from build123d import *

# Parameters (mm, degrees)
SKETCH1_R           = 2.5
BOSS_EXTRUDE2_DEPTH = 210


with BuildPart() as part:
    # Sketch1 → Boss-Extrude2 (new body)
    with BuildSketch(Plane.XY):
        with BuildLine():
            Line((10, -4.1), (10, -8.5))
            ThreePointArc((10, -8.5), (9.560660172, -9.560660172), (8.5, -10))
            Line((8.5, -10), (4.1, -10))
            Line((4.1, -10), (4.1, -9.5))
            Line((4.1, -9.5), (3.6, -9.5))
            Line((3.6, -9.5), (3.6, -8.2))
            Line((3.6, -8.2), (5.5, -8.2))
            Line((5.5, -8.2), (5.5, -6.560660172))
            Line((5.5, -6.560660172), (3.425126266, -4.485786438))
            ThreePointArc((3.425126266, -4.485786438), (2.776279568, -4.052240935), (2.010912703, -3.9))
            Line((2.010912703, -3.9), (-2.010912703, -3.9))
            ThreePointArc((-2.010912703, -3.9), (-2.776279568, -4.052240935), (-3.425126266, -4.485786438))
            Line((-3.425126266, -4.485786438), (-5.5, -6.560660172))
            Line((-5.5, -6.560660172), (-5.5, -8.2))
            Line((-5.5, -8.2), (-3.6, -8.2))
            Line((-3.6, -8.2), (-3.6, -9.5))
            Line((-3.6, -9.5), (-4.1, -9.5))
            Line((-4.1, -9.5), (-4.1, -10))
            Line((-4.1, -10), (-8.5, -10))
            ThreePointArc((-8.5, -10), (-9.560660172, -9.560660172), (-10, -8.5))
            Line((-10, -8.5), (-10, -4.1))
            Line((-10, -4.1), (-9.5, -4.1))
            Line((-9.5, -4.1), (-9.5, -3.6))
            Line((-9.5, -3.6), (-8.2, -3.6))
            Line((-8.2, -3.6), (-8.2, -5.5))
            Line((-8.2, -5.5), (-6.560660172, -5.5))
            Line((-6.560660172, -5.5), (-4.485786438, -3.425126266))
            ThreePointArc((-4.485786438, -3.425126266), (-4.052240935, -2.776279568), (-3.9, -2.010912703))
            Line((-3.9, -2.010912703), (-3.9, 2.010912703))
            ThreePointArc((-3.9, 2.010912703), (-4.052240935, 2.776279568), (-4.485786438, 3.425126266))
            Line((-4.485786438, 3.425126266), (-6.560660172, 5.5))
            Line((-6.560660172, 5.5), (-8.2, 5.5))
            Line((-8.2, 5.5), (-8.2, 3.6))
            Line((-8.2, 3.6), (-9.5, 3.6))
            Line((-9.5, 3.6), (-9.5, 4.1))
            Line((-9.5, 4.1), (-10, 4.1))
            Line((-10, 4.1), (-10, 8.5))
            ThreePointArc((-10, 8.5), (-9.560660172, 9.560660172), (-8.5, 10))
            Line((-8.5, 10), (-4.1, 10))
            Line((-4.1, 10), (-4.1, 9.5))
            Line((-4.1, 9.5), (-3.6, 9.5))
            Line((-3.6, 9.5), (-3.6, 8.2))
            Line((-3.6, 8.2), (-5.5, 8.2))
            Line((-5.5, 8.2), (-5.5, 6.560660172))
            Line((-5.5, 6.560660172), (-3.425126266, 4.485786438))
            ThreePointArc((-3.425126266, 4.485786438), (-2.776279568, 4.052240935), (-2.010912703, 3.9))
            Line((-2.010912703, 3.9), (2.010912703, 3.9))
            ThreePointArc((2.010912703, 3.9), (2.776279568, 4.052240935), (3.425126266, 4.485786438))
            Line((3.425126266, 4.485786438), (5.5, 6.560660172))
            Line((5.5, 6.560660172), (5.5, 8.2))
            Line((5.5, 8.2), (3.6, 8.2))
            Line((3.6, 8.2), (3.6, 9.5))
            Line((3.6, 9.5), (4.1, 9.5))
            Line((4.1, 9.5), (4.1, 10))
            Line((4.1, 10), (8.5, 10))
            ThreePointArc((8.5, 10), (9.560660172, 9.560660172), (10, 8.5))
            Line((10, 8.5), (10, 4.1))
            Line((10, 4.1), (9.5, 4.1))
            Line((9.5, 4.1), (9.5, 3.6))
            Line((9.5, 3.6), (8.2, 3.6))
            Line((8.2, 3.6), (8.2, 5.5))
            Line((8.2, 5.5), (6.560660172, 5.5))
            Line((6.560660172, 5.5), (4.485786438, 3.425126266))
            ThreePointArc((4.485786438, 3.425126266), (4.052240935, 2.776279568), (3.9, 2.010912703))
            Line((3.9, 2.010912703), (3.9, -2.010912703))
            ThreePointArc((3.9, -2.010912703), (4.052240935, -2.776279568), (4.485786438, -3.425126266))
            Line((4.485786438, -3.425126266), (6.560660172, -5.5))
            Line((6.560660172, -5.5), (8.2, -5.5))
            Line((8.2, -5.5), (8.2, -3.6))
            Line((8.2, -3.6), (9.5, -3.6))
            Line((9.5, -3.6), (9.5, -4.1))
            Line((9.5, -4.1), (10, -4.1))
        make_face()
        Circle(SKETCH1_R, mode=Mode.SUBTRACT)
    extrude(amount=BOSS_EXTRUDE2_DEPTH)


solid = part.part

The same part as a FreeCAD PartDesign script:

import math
import FreeCAD as App
import Part
import Sketcher
from FreeCAD import Vector
Q = App.Units.Quantity

doc = App.newDocument("Part")
body = doc.addObject("PartDesign::Body", "Body")

sketch1 = body.newObject("Sketcher::SketchObject", "Sketch")
sketch1.AttachmentSupport = (doc.getObject("XY_Plane"), [""])
sketch1.MapMode = "FlatFace"
sketch1.addGeometry(Part.LineSegment(Vector(10, -8.5, 0), Vector(10, -4.1, 0)), False)
sketch1.addGeometry(Part.LineSegment(Vector(10, -4.1, 0), Vector(9.5, -4.1, 0)), False)
sketch1.addGeometry(Part.LineSegment(Vector(9.5, -4.1, 0), Vector(9.5, -3.6, 0)), False)
sketch1.addGeometry(Part.LineSegment(Vector(9.5, -3.6, 0), Vector(8.2, -3.6, 0)), False)
sketch1.addGeometry(Part.LineSegment(Vector(8.2, -3.6, 0), Vector(8.2, -5.5, 0)), False)
sketch1.addGeometry(Part.LineSegment(Vector(8.2, -5.5, 0), Vector(6.56066, -5.5, 0)), False)
sketch1.addGeometry(Part.LineSegment(Vector(6.56066, -5.5, 0), Vector(4.485786, -3.425126, 0)), False)
sketch1.addGeometry(Part.ArcOfCircle(Part.Circle(Vector(5.9, -2.010913, 0), Vector(0, 0, 1), 2), math.radians(180), math.radians(225)), False)
sketch1.addGeometry(Part.LineSegment(Vector(3.9, -2.010913, 0), Vector(3.9, 2.010913, 0)), False)
sketch1.addGeometry(Part.ArcOfCircle(Part.Circle(Vector(5.9, 2.010913, 0), Vector(0, 0, 1), 2), math.radians(135), math.radians(180)), False)
sketch1.addGeometry(Part.LineSegment(Vector(4.485786, 3.425126, 0), Vector(6.56066, 5.5, 0)), False)
sketch1.addGeometry(Part.LineSegment(Vector(6.56066, 5.5, 0), Vector(8.2, 5.5, 0)), False)
sketch1.addGeometry(Part.LineSegment(Vector(8.2, 5.5, 0), Vector(8.2, 3.6, 0)), False)
sketch1.addGeometry(Part.LineSegment(Vector(8.2, 3.6, 0), Vector(9.5, 3.6, 0)), False)
sketch1.addGeometry(Part.LineSegment(Vector(9.5, 3.6, 0), Vector(9.5, 4.1, 0)), False)
sketch1.addGeometry(Part.LineSegment(Vector(9.5, 4.1, 0), Vector(10, 4.1, 0)), False)
sketch1.addGeometry(Part.LineSegment(Vector(10, 4.1, 0), Vector(10, 8.5, 0)), False)
sketch1.addGeometry(Part.ArcOfCircle(Part.Circle(Vector(8.5, 8.5, 0), Vector(0, 0, 1), 1.5), math.radians(0), math.radians(90)), False)
sketch1.addGeometry(Part.LineSegment(Vector(8.5, 10, 0), Vector(4.1, 10, 0)), False)
sketch1.addGeometry(Part.LineSegment(Vector(4.1, 10, 0), Vector(4.1, 9.5, 0)), False)
sketch1.addGeometry(Part.LineSegment(Vector(4.1, 9.5, 0), Vector(3.6, 9.5, 0)), False)
sketch1.addGeometry(Part.LineSegment(Vector(3.6, 9.5, 0), Vector(3.6, 8.2, 0)), False)
sketch1.addGeometry(Part.LineSegment(Vector(3.6, 8.2, 0), Vector(5.5, 8.2, 0)), False)
sketch1.addGeometry(Part.LineSegment(Vector(5.5, 8.2, 0), Vector(5.5, 6.56066, 0)), False)
sketch1.addGeometry(Part.LineSegment(Vector(5.5, 6.56066, 0), Vector(3.425126, 4.485786, 0)), False)
sketch1.addGeometry(Part.ArcOfCircle(Part.Circle(Vector(2.010913, 5.9, 0), Vector(0, 0, 1), 2), math.radians(-90), math.radians(-45)), False)
sketch1.addGeometry(Part.LineSegment(Vector(2.010913, 3.9, 0), Vector(-2.010913, 3.9, 0)), False)
sketch1.addGeometry(Part.ArcOfCircle(Part.Circle(Vector(-2.010913, 5.9, 0), Vector(0, 0, 1), 2), math.radians(-135), math.radians(-90)), False)
sketch1.addGeometry(Part.LineSegment(Vector(-3.425126, 4.485786, 0), Vector(-5.5, 6.56066, 0)), False)
sketch1.addGeometry(Part.LineSegment(Vector(-5.5, 6.56066, 0), Vector(-5.5, 8.2, 0)), False)
sketch1.addGeometry(Part.LineSegment(Vector(-5.5, 8.2, 0), Vector(-3.6, 8.2, 0)), False)
sketch1.addGeometry(Part.LineSegment(Vector(-3.6, 8.2, 0), Vector(-3.6, 9.5, 0)), False)
sketch1.addGeometry(Part.LineSegment(Vector(-3.6, 9.5, 0), Vector(-4.1, 9.5, 0)), False)
sketch1.addGeometry(Part.LineSegment(Vector(-4.1, 9.5, 0), Vector(-4.1, 10, 0)), False)
sketch1.addGeometry(Part.LineSegment(Vector(-4.1, 10, 0), Vector(-8.5, 10, 0)), False)
sketch1.addGeometry(Part.ArcOfCircle(Part.Circle(Vector(-8.5, 8.5, 0), Vector(0, 0, 1), 1.5), math.radians(90), math.radians(180)), False)
sketch1.addGeometry(Part.LineSegment(Vector(-10, 8.5, 0), Vector(-10, 4.1, 0)), False)
sketch1.addGeometry(Part.LineSegment(Vector(-10, 4.1, 0), Vector(-9.5, 4.1, 0)), False)
sketch1.addGeometry(Part.LineSegment(Vector(-9.5, 4.1, 0), Vector(-9.5, 3.6, 0)), False)
sketch1.addGeometry(Part.LineSegment(Vector(-9.5, 3.6, 0), Vector(-8.2, 3.6, 0)), False)
sketch1.addGeometry(Part.LineSegment(Vector(-8.2, 3.6, 0), Vector(-8.2, 5.5, 0)), False)
sketch1.addGeometry(Part.LineSegment(Vector(-8.2, 5.5, 0), Vector(-6.56066, 5.5, 0)), False)
sketch1.addGeometry(Part.LineSegment(Vector(-6.56066, 5.5, 0), Vector(-4.485786, 3.425126, 0)), False)
sketch1.addGeometry(Part.ArcOfCircle(Part.Circle(Vector(-5.9, 2.010913, 0), Vector(0, 0, 1), 2), math.radians(0), math.radians(45)), False)
sketch1.addGeometry(Part.LineSegment(Vector(-3.9, 2.010913, 0), Vector(-3.9, -2.010913, 0)), False)
sketch1.addGeometry(Part.ArcOfCircle(Part.Circle(Vector(-5.9, -2.010913, 0), Vector(0, 0, 1), 2), math.radians(-45), math.radians(0)), False)
sketch1.addGeometry(Part.LineSegment(Vector(-4.485786, -3.425126, 0), Vector(-6.56066, -5.5, 0)), False)
sketch1.addGeometry(Part.LineSegment(Vector(-6.56066, -5.5, 0), Vector(-8.2, -5.5, 0)), False)
sketch1.addGeometry(Part.LineSegment(Vector(-8.2, -5.5, 0), Vector(-8.2, -3.6, 0)), False)
sketch1.addGeometry(Part.LineSegment(Vector(-8.2, -3.6, 0), Vector(-9.5, -3.6, 0)), False)
sketch1.addGeometry(Part.LineSegment(Vector(-9.5, -3.6, 0), Vector(-9.5, -4.1, 0)), False)
sketch1.addGeometry(Part.LineSegment(Vector(-9.5, -4.1, 0), Vector(-10, -4.1, 0)), False)
sketch1.addGeometry(Part.LineSegment(Vector(-10, -4.1, 0), Vector(-10, -8.5, 0)), False)
sketch1.addGeometry(Part.ArcOfCircle(Part.Circle(Vector(-8.5, -8.5, 0), Vector(0, 0, 1), 1.5), math.radians(180), math.radians(270)), False)
sketch1.addGeometry(Part.LineSegment(Vector(-8.5, -10, 0), Vector(-4.1, -10, 0)), False)
sketch1.addGeometry(Part.LineSegment(Vector(-4.1, -10, 0), Vector(-4.1, -9.5, 0)), False)
sketch1.addGeometry(Part.LineSegment(Vector(-4.1, -9.5, 0), Vector(-3.6, -9.5, 0)), False)
sketch1.addGeometry(Part.LineSegment(Vector(-3.6, -9.5, 0), Vector(-3.6, -8.2, 0)), False)
sketch1.addGeometry(Part.LineSegment(Vector(-3.6, -8.2, 0), Vector(-5.5, -8.2, 0)), False)
sketch1.addGeometry(Part.LineSegment(Vector(-5.5, -8.2, 0), Vector(-5.5, -6.56066, 0)), False)
sketch1.addGeometry(Part.LineSegment(Vector(-5.5, -6.56066, 0), Vector(-3.425126, -4.485786, 0)), False)
sketch1.addGeometry(Part.ArcOfCircle(Part.Circle(Vector(-2.010913, -5.9, 0), Vector(0, 0, 1), 2), math.radians(90), math.radians(135)), False)
sketch1.addGeometry(Part.LineSegment(Vector(-2.010913, -3.9, 0), Vector(2.010913, -3.9, 0)), False)
sketch1.addGeometry(Part.ArcOfCircle(Part.Circle(Vector(2.010913, -5.9, 0), Vector(0, 0, 1), 2), math.radians(45), math.radians(90)), False)
sketch1.addGeometry(Part.LineSegment(Vector(3.425126, -4.485786, 0), Vector(5.5, -6.56066, 0)), False)
sketch1.addGeometry(Part.LineSegment(Vector(5.5, -6.56066, 0), Vector(5.5, -8.2, 0)), False)
sketch1.addGeometry(Part.LineSegment(Vector(5.5, -8.2, 0), Vector(3.6, -8.2, 0)), False)
sketch1.addGeometry(Part.LineSegment(Vector(3.6, -8.2, 0), Vector(3.6, -9.5, 0)), False)
sketch1.addGeometry(Part.LineSegment(Vector(3.6, -9.5, 0), Vector(4.1, -9.5, 0)), False)
sketch1.addGeometry(Part.LineSegment(Vector(4.1, -9.5, 0), Vector(4.1, -10, 0)), False)
sketch1.addGeometry(Part.LineSegment(Vector(4.1, -10, 0), Vector(8.5, -10, 0)), False)
sketch1.addGeometry(Part.ArcOfCircle(Part.Circle(Vector(8.5, -8.5, 0), Vector(0, 0, 1), 1.5), math.radians(-90), math.radians(0)), False)
sketch1.addGeometry(Part.Circle(Vector(0, 0, 0), Vector(0, 0, 1), 2.5), False)
sketch1.addConstraint(Sketcher.Constraint("Coincident", 0, 2, 1, 1))
sketch1.addConstraint(Sketcher.Constraint("Coincident", 1, 2, 2, 1))
sketch1.addConstraint(Sketcher.Constraint("Coincident", 2, 2, 3, 1))
sketch1.addConstraint(Sketcher.Constraint("Coincident", 3, 2, 4, 1))
sketch1.addConstraint(Sketcher.Constraint("Coincident", 4, 2, 5, 1))
sketch1.addConstraint(Sketcher.Constraint("Coincident", 5, 2, 6, 1))
sketch1.addConstraint(Sketcher.Constraint("Tangent", 6, 2, 7, 2))
sketch1.addConstraint(Sketcher.Constraint("Tangent", 7, 1, 8, 1))
sketch1.addConstraint(Sketcher.Constraint("Tangent", 8, 2, 9, 2))
sketch1.addConstraint(Sketcher.Constraint("Tangent", 9, 1, 10, 1))
sketch1.addConstraint(Sketcher.Constraint("Coincident", 10, 2, 11, 1))
sketch1.addConstraint(Sketcher.Constraint("Coincident", 11, 2, 12, 1))
sketch1.addConstraint(Sketcher.Constraint("Coincident", 12, 2, 13, 1))
sketch1.addConstraint(Sketcher.Constraint("Coincident", 13, 2, 14, 1))
sketch1.addConstraint(Sketcher.Constraint("Coincident", 14, 2, 15, 1))
sketch1.addConstraint(Sketcher.Constraint("Coincident", 15, 2, 16, 1))
sketch1.addConstraint(Sketcher.Constraint("Tangent", 16, 2, 17, 1))
sketch1.addConstraint(Sketcher.Constraint("Tangent", 17, 2, 18, 1))
sketch1.addConstraint(Sketcher.Constraint("Coincident", 18, 2, 19, 1))
sketch1.addConstraint(Sketcher.Constraint("Coincident", 19, 2, 20, 1))
sketch1.addConstraint(Sketcher.Constraint("Coincident", 20, 2, 21, 1))
sketch1.addConstraint(Sketcher.Constraint("Coincident", 21, 2, 22, 1))
sketch1.addConstraint(Sketcher.Constraint("Coincident", 22, 2, 23, 1))
sketch1.addConstraint(Sketcher.Constraint("Coincident", 23, 2, 24, 1))
sketch1.addConstraint(Sketcher.Constraint("Tangent", 24, 2, 25, 2))
sketch1.addConstraint(Sketcher.Constraint("Tangent", 25, 1, 26, 1))
sketch1.addConstraint(Sketcher.Constraint("Tangent", 26, 2, 27, 2))
sketch1.addConstraint(Sketcher.Constraint("Tangent", 27, 1, 28, 1))
sketch1.addConstraint(Sketcher.Constraint("Coincident", 28, 2, 29, 1))
sketch1.addConstraint(Sketcher.Constraint("Coincident", 29, 2, 30, 1))
sketch1.addConstraint(Sketcher.Constraint("Coincident", 30, 2, 31, 1))
sketch1.addConstraint(Sketcher.Constraint("Coincident", 31, 2, 32, 1))
sketch1.addConstraint(Sketcher.Constraint("Coincident", 32, 2, 33, 1))
sketch1.addConstraint(Sketcher.Constraint("Coincident", 33, 2, 34, 1))
sketch1.addConstraint(Sketcher.Constraint("Tangent", 34, 2, 35, 1))
sketch1.addConstraint(Sketcher.Constraint("Tangent", 35, 2, 36, 1))
sketch1.addConstraint(Sketcher.Constraint("Coincident", 36, 2, 37, 1))
sketch1.addConstraint(Sketcher.Constraint("Coincident", 37, 2, 38, 1))
sketch1.addConstraint(Sketcher.Constraint("Coincident", 38, 2, 39, 1))
sketch1.addConstraint(Sketcher.Constraint("Coincident", 39, 2, 40, 1))
sketch1.addConstraint(Sketcher.Constraint("Coincident", 40, 2, 41, 1))
sketch1.addConstraint(Sketcher.Constraint("Coincident", 41, 2, 42, 1))
sketch1.addConstraint(Sketcher.Constraint("Tangent", 42, 2, 43, 2))
sketch1.addConstraint(Sketcher.Constraint("Tangent", 43, 1, 44, 1))
sketch1.addConstraint(Sketcher.Constraint("Tangent", 44, 2, 45, 2))
sketch1.addConstraint(Sketcher.Constraint("Tangent", 45, 1, 46, 1))
sketch1.addConstraint(Sketcher.Constraint("Coincident", 46, 2, 47, 1))
sketch1.addConstraint(Sketcher.Constraint("Coincident", 47, 2, 48, 1))
sketch1.addConstraint(Sketcher.Constraint("Coincident", 48, 2, 49, 1))
sketch1.addConstraint(Sketcher.Constraint("Coincident", 49, 2, 50, 1))
sketch1.addConstraint(Sketcher.Constraint("Coincident", 50, 2, 51, 1))
sketch1.addConstraint(Sketcher.Constraint("Coincident", 51, 2, 52, 1))
sketch1.addConstraint(Sketcher.Constraint("Tangent", 52, 2, 53, 1))
sketch1.addConstraint(Sketcher.Constraint("Tangent", 53, 2, 54, 1))
sketch1.addConstraint(Sketcher.Constraint("Coincident", 54, 2, 55, 1))
sketch1.addConstraint(Sketcher.Constraint("Coincident", 55, 2, 56, 1))
sketch1.addConstraint(Sketcher.Constraint("Coincident", 56, 2, 57, 1))
sketch1.addConstraint(Sketcher.Constraint("Coincident", 57, 2, 58, 1))
sketch1.addConstraint(Sketcher.Constraint("Coincident", 58, 2, 59, 1))
sketch1.addConstraint(Sketcher.Constraint("Coincident", 59, 2, 60, 1))
sketch1.addConstraint(Sketcher.Constraint("Tangent", 60, 2, 61, 2))
sketch1.addConstraint(Sketcher.Constraint("Tangent", 61, 1, 62, 1))
sketch1.addConstraint(Sketcher.Constraint("Tangent", 62, 2, 63, 2))
sketch1.addConstraint(Sketcher.Constraint("Tangent", 63, 1, 64, 1))
sketch1.addConstraint(Sketcher.Constraint("Coincident", 64, 2, 65, 1))
sketch1.addConstraint(Sketcher.Constraint("Coincident", 65, 2, 66, 1))
sketch1.addConstraint(Sketcher.Constraint("Coincident", 66, 2, 67, 1))
sketch1.addConstraint(Sketcher.Constraint("Coincident", 67, 2, 68, 1))
sketch1.addConstraint(Sketcher.Constraint("Coincident", 68, 2, 69, 1))
sketch1.addConstraint(Sketcher.Constraint("Coincident", 69, 2, 70, 1))
sketch1.addConstraint(Sketcher.Constraint("Tangent", 70, 2, 71, 1))
sketch1.addConstraint(Sketcher.Constraint("Tangent", 71, 2, 0, 1))
sketch1.addConstraint(Sketcher.Constraint("Vertical", 0))
sketch1.addConstraint(Sketcher.Constraint("Horizontal", 1))
sketch1.addConstraint(Sketcher.Constraint("Vertical", 2))
sketch1.addConstraint(Sketcher.Constraint("Horizontal", 3))
sketch1.addConstraint(Sketcher.Constraint("Vertical", 4))
sketch1.addConstraint(Sketcher.Constraint("Horizontal", 5))
sketch1.addConstraint(Sketcher.Constraint("Vertical", 8))
sketch1.addConstraint(Sketcher.Constraint("Horizontal", 11))
sketch1.addConstraint(Sketcher.Constraint("Vertical", 12))
sketch1.addConstraint(Sketcher.Constraint("Horizontal", 13))
sketch1.addConstraint(Sketcher.Constraint("Vertical", 14))
sketch1.addConstraint(Sketcher.Constraint("Horizontal", 15))
sketch1.addConstraint(Sketcher.Constraint("Vertical", 16))
sketch1.addConstraint(Sketcher.Constraint("Horizontal", 18))
sketch1.addConstraint(Sketcher.Constraint("Vertical", 19))
sketch1.addConstraint(Sketcher.Constraint("Horizontal", 20))
sketch1.addConstraint(Sketcher.Constraint("Vertical", 21))
sketch1.addConstraint(Sketcher.Constraint("Horizontal", 22))
sketch1.addConstraint(Sketcher.Constraint("Vertical", 23))
sketch1.addConstraint(Sketcher.Constraint("Horizontal", 26))
sketch1.addConstraint(Sketcher.Constraint("Vertical", 29))
sketch1.addConstraint(Sketcher.Constraint("Horizontal", 30))
sketch1.addConstraint(Sketcher.Constraint("Vertical", 31))
sketch1.addConstraint(Sketcher.Constraint("Horizontal", 32))
sketch1.addConstraint(Sketcher.Constraint("Vertical", 33))
sketch1.addConstraint(Sketcher.Constraint("Horizontal", 34))
sketch1.addConstraint(Sketcher.Constraint("Vertical", 36))
sketch1.addConstraint(Sketcher.Constraint("Horizontal", 37))
sketch1.addConstraint(Sketcher.Constraint("Vertical", 38))
sketch1.addConstraint(Sketcher.Constraint("Horizontal", 39))
sketch1.addConstraint(Sketcher.Constraint("Vertical", 40))
sketch1.addConstraint(Sketcher.Constraint("Horizontal", 41))
sketch1.addConstraint(Sketcher.Constraint("Vertical", 44))
sketch1.addConstraint(Sketcher.Constraint("Horizontal", 47))
sketch1.addConstraint(Sketcher.Constraint("Vertical", 48))
sketch1.addConstraint(Sketcher.Constraint("Horizontal", 49))
sketch1.addConstraint(Sketcher.Constraint("Vertical", 50))
sketch1.addConstraint(Sketcher.Constraint("Horizontal", 51))
sketch1.addConstraint(Sketcher.Constraint("Vertical", 52))
sketch1.addConstraint(Sketcher.Constraint("Horizontal", 54))
sketch1.addConstraint(Sketcher.Constraint("Vertical", 55))
sketch1.addConstraint(Sketcher.Constraint("Horizontal", 56))
sketch1.addConstraint(Sketcher.Constraint("Vertical", 57))
sketch1.addConstraint(Sketcher.Constraint("Horizontal", 58))
sketch1.addConstraint(Sketcher.Constraint("Vertical", 59))
sketch1.addConstraint(Sketcher.Constraint("Horizontal", 62))
sketch1.addConstraint(Sketcher.Constraint("Vertical", 65))
sketch1.addConstraint(Sketcher.Constraint("Horizontal", 66))
sketch1.addConstraint(Sketcher.Constraint("Vertical", 67))
sketch1.addConstraint(Sketcher.Constraint("Horizontal", 68))
sketch1.addConstraint(Sketcher.Constraint("Vertical", 69))
sketch1.addConstraint(Sketcher.Constraint("Horizontal", 70))
sketch1.addConstraint(Sketcher.Constraint("Coincident", 72, 3, -1, 1))
sketch1.addConstraint(Sketcher.Constraint("Equal", 7, 9))
sketch1.addConstraint(Sketcher.Constraint("Equal", 9, 25))
sketch1.addConstraint(Sketcher.Constraint("Equal", 25, 27))
sketch1.addConstraint(Sketcher.Constraint("Equal", 17, 35))
sketch1.addConstraint(Sketcher.Constraint("Equal", 27, 43))
sketch1.addConstraint(Sketcher.Constraint("Equal", 43, 45))
sketch1.addConstraint(Sketcher.Constraint("Equal", 35, 53))
sketch1.addConstraint(Sketcher.Constraint("Equal", 45, 61))
sketch1.addConstraint(Sketcher.Constraint("Equal", 61, 63))
sketch1.addConstraint(Sketcher.Constraint("Equal", 53, 71))
sketch1.addConstraint(Sketcher.Constraint("Symmetric", 7, 3, 43, 3, -1, 1))
sketch1.addConstraint(Sketcher.Constraint("Symmetric", 17, 3, 53, 3, -1, 1))
sketch1.addConstraint(Sketcher.Constraint("Symmetric", 25, 3, 61, 3, -1, 1))
sketch1.addConstraint(Sketcher.Constraint("Symmetric", 35, 3, 71, 3, -1, 1))
sketch1.addConstraint(Sketcher.Constraint("Symmetric", 1, 2, 37, 2, -1, 1))
sketch1.addConstraint(Sketcher.Constraint("Symmetric", 3, 2, 39, 2, -1, 1))
sketch1.addConstraint(Sketcher.Constraint("Symmetric", 5, 2, 41, 2, -1, 1))
sketch1.addConstraint(Sketcher.Constraint("Symmetric", 9, 1, 45, 1, -1, 1))
sketch1.addConstraint(Sketcher.Constraint("Symmetric", 11, 2, 47, 2, -1, 1))
sketch1.addConstraint(Sketcher.Constraint("Symmetric", 13, 2, 49, 2, -1, 1))
sketch1.addConstraint(Sketcher.Constraint("Symmetric", 19, 2, 55, 2, -1, 1))
sketch1.addConstraint(Sketcher.Constraint("Symmetric", 21, 2, 57, 2, -1, 1))
sketch1.addConstraint(Sketcher.Constraint("Symmetric", 23, 2, 59, 2, -1, 1))
sketch1.addConstraint(Sketcher.Constraint("Symmetric", 27, 1, 63, 1, -1, 1))
sketch1.addConstraint(Sketcher.Constraint("Symmetric", 29, 2, 65, 2, -1, 1))
sketch1.addConstraint(Sketcher.Constraint("Symmetric", 31, 2, 67, 2, -1, 1))
sketch1.addConstraint(Sketcher.Constraint("Symmetric", 17, 3, 35, 3, -2))
sketch1.addConstraint(Sketcher.Constraint("Symmetric", 24, 2, 27, 1, -2))
sketch1.addConstraint(Sketcher.Constraint("Symmetric", 22, 2, 29, 2, -2))
sketch1.addConstraint(Sketcher.Constraint("Symmetric", 20, 2, 31, 2, -2))
sketch1.addConstraint(Sketcher.Constraint("Symmetric", 14, 2, 37, 2, -2))
sketch1.addConstraint(Sketcher.Constraint("Symmetric", 12, 2, 39, 2, -2))
sketch1.addConstraint(Sketcher.Constraint("Symmetric", 10, 2, 41, 2, -2))
sketch1.addConstraint(Sketcher.Constraint("Perpendicular", 6, 10))
sketch1.addConstraint(Sketcher.Constraint("Parallel", 10, 24))
sketch1.addConstraint(Sketcher.Constraint("Perpendicular", 24, 28))
sketch1.addConstraint(Sketcher.Constraint("Horizontal", 1, 2, 50, 2))
sketch1.addConstraint(Sketcher.Constraint("Vertical", 33, 2, 54, 2))
sketch1.addConstraint(Sketcher.Constraint("Vertical", 19, 2, 68, 2))
sketch1.addConstraint(Sketcher.Constraint("Equal", 15, 20))
sketch1.addConstraint(Sketcher.Constraint("Equal", 70, 0))
sketch1.addConstraint(Sketcher.Constraint("Equal", 68, 2))
sketch1.addConstraint(Sketcher.Constraint("Equal", 66, 4))
sketch1.addConstraint(Sketcher.Constraint("Equal", 62, 8))
sketch1.addConstraint(Sketcher.Constraint("Equal", 14, 19))
sketch1.addConstraint(Sketcher.Constraint("Equal", 49, 21))
sketch1.addConstraint(Sketcher.Constraint("Equal", 47, 23))
sketch1.addConstraint(Sketcher.Constraint("Equal", 10, 24))
sketch1.addConstraint(Sketcher.Constraint("Diameter", 72, Q("5 mm")))
sketch1.addConstraint(Sketcher.Constraint("Radius", 7, Q("2 mm")))
sketch1.addConstraint(Sketcher.Constraint("Radius", 17, Q("1.5 mm")))
sketch1.addConstraint(Sketcher.Constraint("DistanceX", 1, 2, 1, 1, Q("0.5 mm")))
sketch1.addConstraint(Sketcher.Constraint("DistanceX", 3, 2, 3, 1, Q("1.3 mm")))
sketch1.addConstraint(Sketcher.Constraint("DistanceX", 18, 2, 18, 1, Q("4.4 mm")))
sketch1.addConstraint(Sketcher.Constraint("DistanceX", 22, 1, 22, 2, Q("1.9 mm")))
sketch1.addConstraint(Sketcher.Constraint("DistanceX", -1, 1, 0, 2, Q("10 mm")))
sketch1.addConstraint(Sketcher.Constraint("DistanceX", -1, 1, 7, 3, Q("5.9 mm")))
sketch1.addConstraint(Sketcher.Constraint("DistanceX", 5, 2, 5, 1, Q("1.63934 mm")))
pad1 = body.newObject("PartDesign::Pad", "Pad")
pad1.Profile = sketch1
pad1.Length = 210

doc.recompute()
